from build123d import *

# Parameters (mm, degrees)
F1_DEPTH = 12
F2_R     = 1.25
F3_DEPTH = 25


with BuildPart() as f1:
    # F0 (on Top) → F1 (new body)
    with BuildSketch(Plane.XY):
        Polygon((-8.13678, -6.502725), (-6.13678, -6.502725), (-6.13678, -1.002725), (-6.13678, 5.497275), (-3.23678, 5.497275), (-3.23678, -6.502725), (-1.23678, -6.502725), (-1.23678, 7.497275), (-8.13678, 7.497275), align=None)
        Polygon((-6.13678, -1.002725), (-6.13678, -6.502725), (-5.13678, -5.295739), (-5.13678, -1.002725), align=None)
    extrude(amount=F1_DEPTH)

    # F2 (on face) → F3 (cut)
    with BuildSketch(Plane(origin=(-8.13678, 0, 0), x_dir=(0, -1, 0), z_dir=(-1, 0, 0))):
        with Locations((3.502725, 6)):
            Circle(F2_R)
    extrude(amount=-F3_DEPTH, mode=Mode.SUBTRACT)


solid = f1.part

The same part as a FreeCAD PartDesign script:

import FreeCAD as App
import Part
import Sketcher
from FreeCAD import Vector
Q = App.Units.Quantity


def add_polygon(sketch, points):
    """Adds a closed chain of lines whose ends are joined by coincident constraints."""
    first, n = sketch.GeometryCount, len(points)
    for a, b in zip(points, points[1:] + points[:1]):
        sketch.addGeometry(Part.LineSegment(App.Vector(*a, 0), App.Vector(*b, 0)), False)
    for i in range(n):
        sketch.addConstraint(Sketcher.Constraint("Coincident", first + i, 2, first + (i + 1) % n, 1))

doc = App.newDocument("Part")
params = doc.addObject("Spreadsheet::Sheet", "Params")
for row, (alias, value) in enumerate([
    ("sketch1_width", "2 mm"),
    ("sketch1_width2", "1 mm"),
    ("sketch1_height", "12 mm"),
    ("sketch1_height2", "14 mm"),
    ("sketch1_width3", "2.9 mm"),
    ("pad1_length", "12 mm"),
    ("sketch2_diameter", "2.5 mm"),
    ("pocket1_length", "25 mm"),
], start=1):
    params.set(f"A{row}", alias)
    params.set(f"B{row}", "=" + value)
    params.setAlias(f"B{row}", alias)

body = doc.addObject("PartDesign::Body", "Body")

# Sketch on XY plane
sketch1 = doc.addObject("Sketcher::SketchObject", "Sketch")
body.addObject(sketch1)
sketch1.AttachmentSupport = (doc.XY_Plane, [""])
sketch1.MapMode = "FlatFace"
add_polygon(sketch1, [(-8.13678, -6.502725), (-6.13678, -6.502725), (-5.13678, -5.295739), (-5.13678, -1.002725), (-6.13678, -1.002725), (-6.13678, 5.497275), (-3.23678, 5.497275), (-3.23678, -6.502725), (-1.23678, -6.502725), (-1.23678, 7.497275), (-8.13678, 7.497275)])  # lines 0-10
sketch1.addConstraint(Sketcher.Constraint("Horizontal", 0))
sketch1.addConstraint(Sketcher.Constraint("Vertical", 2))
sketch1.addConstraint(Sketcher.Constraint("Horizontal", 3))
sketch1.addConstraint(Sketcher.Constraint("Vertical", 4))
sketch1.addConstraint(Sketcher.Constraint("Horizontal", 5))
sketch1.addConstraint(Sketcher.Constraint("Vertical", 6))
sketch1.addConstraint(Sketcher.Constraint("Horizontal", 7))
sketch1.addConstraint(Sketcher.Constraint("Vertical", 8))
sketch1.addConstraint(Sketcher.Constraint("Horizontal", 9))
sketch1.addConstraint(Sketcher.Constraint("Vertical", 10))
sketch1.addConstraint(Sketcher.Constraint("Horizontal", 0, 2, 6, 2))
sketch1.addConstraint(Sketcher.Constraint("Vertical", 0, 2, 3, 2))
sketch1.addConstraint(Sketcher.Constraint("Equal", 0, 7))
sketch1.addConstraint(Sketcher.Constraint("DistanceX", 0, 1, 0, 2, Q("2 mm")))
sketch1.addConstraint(Sketcher.Constraint("DistanceX", 3, 2, 3, 1, Q("1 mm")))
sketch1.addConstraint(Sketcher.Constraint("DistanceY", 6, 2, 6, 1, Q("12 mm")))
sketch1.addConstraint(Sketcher.Constraint("DistanceY", 8, 1, 8, 2, Q("14 mm")))
sketch1.addConstraint(Sketcher.Constraint("DistanceX", 5, 1, 5, 2, Q("2.9 mm")))
sketch1.addConstraint(Sketcher.Constraint("DistanceY", 4, 1, 4, 2, Q("6.5 mm")))
sketch1.addConstraint(Sketcher.Constraint("DistanceY", 2, 1, 2, 2, Q("4.293014 mm")))
sketch1.addConstraint(Sketcher.Constraint("DistanceX", 0, 2, -1, 1, Q("6.13678 mm")))
sketch1.addConstraint(Sketcher.Constraint("DistanceY", 1, 2, -1, 1, Q("5.295739 mm")))
sketch1.setExpression("Constraints[24]", "Params.sketch1_width")
sketch1.setExpression("Constraints[25]", "Params.sketch1_width2")
sketch1.setExpression("Constraints[26]", "Params.sketch1_height")
sketch1.setExpression("Constraints[27]", "Params.sketch1_height2")
sketch1.setExpression("Constraints[28]", "Params.sketch1_width3")
pad1 = doc.addObject("PartDesign::Pad", "Pad")
body.addObject(pad1)
pad1.Profile = sketch1
pad1.setExpression("Length", "Params.pad1_length")

# Sketch on YZ plane
sketch2 = doc.addObject("Sketcher::SketchObject", "Sketch001")
body.addObject(sketch2)
sketch2.AttachmentSupport = (doc.YZ_Plane, [""])
sketch2.MapMode = "FlatFace"
sketch2.AttachmentOffset = App.Placement(Vector(0, 0, -8.13678), App.Rotation())
sketch2.addGeometry(Part.Circle(Vector(-3.502725, 6, 0), Vector(0, 0, 1), 1.25), False)
sketch2.addConstraint(Sketcher.Constraint("Diameter", 0, Q("2.5 mm")))
sketch2.addConstraint(Sketcher.Constraint("DistanceY", -1, 1, 0, 3, Q("6 mm")))
sketch2.addConstraint(Sketcher.Constraint("DistanceX", 0, 3, -1, 1, Q("3.502725 mm")))
sketch2.setExpression("Constraints[0]", "Params.sketch2_diameter")
pocket1 = doc.addObject("PartDesign::Pocket", "Pocket")
body.addObject(pocket1)
pocket1.Profile = sketch2
pocket1.setExpression("Length", "Params.pocket1_length")
pocket1.Reversed = True

doc.recompute()
